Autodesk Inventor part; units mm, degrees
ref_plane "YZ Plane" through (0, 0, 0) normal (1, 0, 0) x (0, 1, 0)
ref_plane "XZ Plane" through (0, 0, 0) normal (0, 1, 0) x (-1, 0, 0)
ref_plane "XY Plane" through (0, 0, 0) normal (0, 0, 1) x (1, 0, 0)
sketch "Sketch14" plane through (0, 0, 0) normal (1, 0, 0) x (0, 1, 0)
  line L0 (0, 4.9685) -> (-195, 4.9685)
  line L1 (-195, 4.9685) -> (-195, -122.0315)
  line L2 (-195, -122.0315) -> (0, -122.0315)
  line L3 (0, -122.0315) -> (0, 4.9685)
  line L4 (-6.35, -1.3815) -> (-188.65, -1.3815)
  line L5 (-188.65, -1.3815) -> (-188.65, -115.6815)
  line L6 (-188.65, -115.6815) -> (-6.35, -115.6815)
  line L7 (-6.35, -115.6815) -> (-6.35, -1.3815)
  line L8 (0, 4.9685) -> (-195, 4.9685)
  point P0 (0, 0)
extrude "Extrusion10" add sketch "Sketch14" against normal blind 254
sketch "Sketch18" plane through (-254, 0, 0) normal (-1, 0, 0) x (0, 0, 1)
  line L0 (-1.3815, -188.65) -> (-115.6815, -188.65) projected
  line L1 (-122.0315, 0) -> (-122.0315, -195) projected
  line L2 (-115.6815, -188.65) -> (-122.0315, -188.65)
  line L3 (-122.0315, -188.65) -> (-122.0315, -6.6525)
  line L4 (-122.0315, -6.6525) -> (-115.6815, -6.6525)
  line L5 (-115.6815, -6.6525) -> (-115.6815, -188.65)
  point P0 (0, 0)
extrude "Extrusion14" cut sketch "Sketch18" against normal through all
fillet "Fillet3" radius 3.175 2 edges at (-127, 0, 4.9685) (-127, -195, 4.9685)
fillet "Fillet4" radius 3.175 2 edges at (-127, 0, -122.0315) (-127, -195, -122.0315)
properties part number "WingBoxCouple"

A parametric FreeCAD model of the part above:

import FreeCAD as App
import Part
import Sketcher

V = App.Vector
Q = App.Units.Quantity


def edges_at(feature, points):
    """Names of the edges that pass closest to the given points."""
    edges = feature.Shape.Edges
    near = lambda p: min(range(len(edges)), key=lambda i: edges[i].distToShape(Part.Vertex(*p))[0])
    return sorted({f"Edge{near(p) + 1}" for p in points})

doc = App.newDocument("Part")
body = doc.addObject("PartDesign::Body", "Body")

# Sketch on YZ plane
sketch1 = body.newObject("Sketcher::SketchObject", "Sketch")
sketch1.AttachmentSupport = (doc.getObject("YZ_Plane"), [""])
sketch1.MapMode = "FlatFace"
sketch1.addGeometry([
    Part.LineSegment(V(0, -122.0315, 0), V(0, 4.9685, 0)),  # 0
    Part.LineSegment(V(0, 4.9685, 0), V(-195, 4.9685, 0)),  # 1
    Part.LineSegment(V(-195, 4.9685, 0), V(-195, -122.0315, 0)),  # 2
    Part.LineSegment(V(-195, -122.0315, 0), V(0, -122.0315, 0)),  # 3
    Part.LineSegment(V(-188.65, -1.3815, 0), V(-6.35, -1.3815, 0)),  # 4
    Part.LineSegment(V(-6.35, -1.3815, 0), V(-6.35, -115.6815, 0)),  # 5
    Part.LineSegment(V(-6.35, -115.6815, 0), V(-188.65, -115.6815, 0)),  # 6
    Part.LineSegment(V(-188.65, -115.6815, 0), V(-188.65, -1.3815, 0)),  # 7
], False)
sketch1.addConstraint([
    Sketcher.Constraint("Coincident", 0, 2, 1, 1),
    Sketcher.Constraint("Coincident", 1, 2, 2, 1),
    Sketcher.Constraint("Coincident", 2, 2, 3, 1),
    Sketcher.Constraint("Coincident", 3, 2, 0, 1),
    Sketcher.Constraint("Coincident", 4, 2, 5, 1),
    Sketcher.Constraint("Coincident", 5, 2, 6, 1),
    Sketcher.Constraint("Coincident", 6, 2, 7, 1),
    Sketcher.Constraint("Coincident", 7, 2, 4, 1),
    Sketcher.Constraint("Vertical", 0),
    Sketcher.Constraint("Horizontal", 1),
    Sketcher.Constraint("Vertical", 2),
    Sketcher.Constraint("Horizontal", 3),
    Sketcher.Constraint("Horizontal", 4),
    Sketcher.Constraint("Vertical", 5),
    Sketcher.Constraint("Horizontal", 6),
    Sketcher.Constraint("Vertical", 7),
    Sketcher.Constraint("PointOnObject", 0, 2, -2),
    Sketcher.Constraint("DistanceY", 0, 1, 0, 2, Q("5 in")),
    Sketcher.Constraint("DistanceY", 5, 2, 5, 1, Q("4.5 in")),
    Sketcher.Constraint("DistanceX", 4, 2, -1, 1, Q("0.25 in")),
    Sketcher.Constraint("DistanceY", 4, 2, 0, 2, Q("0.25 in")),
    Sketcher.Constraint("DistanceX", 2, 2, 6, 2, Q("0.25 in")),
    Sketcher.Constraint("DistanceX", 1, 2, 1, 1, Q("195 mm")),
    Sketcher.Constraint("DistanceY", -1, 1, 0, 2, Q("0.1956 in")),
])
pad1 = body.newObject("PartDesign::Pad", "Pad")
pad1.Profile = sketch1
pad1.Length = Q("10 in")
pad1.Reversed = True

# Sketch on YZ plane
sketch2 = body.newObject("Sketcher::SketchObject", "Sketch001")
sketch2.AttachmentSupport = (doc.getObject("YZ_Plane"), [""])
sketch2.MapMode = "FlatFace"
sketch2.AttachmentOffset = App.Placement(V(0, 0, -10 * 25.4), App.Rotation())
sketch2.addGeometry([
    Part.LineSegment(V(-6.6525, -115.6815, 0), V(-6.6525, -122.0315, 0)),
    Part.LineSegment(V(-6.6525, -122.0315, 0), V(-188.65, -122.0315, 0)),
    Part.LineSegment(V(-188.65, -122.0315, 0), V(-188.65, -115.6815, 0)),
    Part.LineSegment(V(-188.65, -115.6815, 0), V(-6.6525, -115.6815, 0)),
], False)
sketch2.addConstraint([
    Sketcher.Constraint("Coincident", 0, 2, 1, 1),
    Sketcher.Constraint("Coincident", 1, 2, 2, 1),
    Sketcher.Constraint("Coincident", 2, 2, 3, 1),
    Sketcher.Constraint("Coincident", 3, 2, 0, 1),
    Sketcher.Constraint("Vertical", 0),
    Sketcher.Constraint("Horizontal", 1),
    Sketcher.Constraint("Vertical", 2),
    Sketcher.Constraint("Horizontal", 3),
    Sketcher.Constraint("DistanceY", 0, 2, 0, 1, Q("0.25 in")),
    Sketcher.Constraint("DistanceX", 1, 2, 1, 1, Q("181.9975 mm")),
    Sketcher.Constraint("DistanceX", 0, 2, -1, 1, Q("0.2619 in")),
    Sketcher.Constraint("DistanceY", 0, 2, -1, 1, Q("4.8044 in")),
])
pocket1 = body.newObject("PartDesign::Pocket", "Pocket")
pocket1.Profile = sketch2
pocket1.Type = "ThroughAll"
pocket1.Reversed = True
doc.recompute()

fillet = body.newObject("PartDesign::Fillet", "Fillet")
fillet.Base = (pocket1, edges_at(pocket1, [(-127, 0, 4.968), (-127, -195, 4.968)]))
fillet.Radius = Q("0.125 in")
doc.recompute()

fillet2 = body.newObject("PartDesign::Fillet", "Fillet001")
fillet2.Base = (fillet, edges_at(fillet, [(-127, 0, -122.031), (-127, -195, -122.031)]))
fillet2.Radius = Q("0.125 in")

doc.recompute()
